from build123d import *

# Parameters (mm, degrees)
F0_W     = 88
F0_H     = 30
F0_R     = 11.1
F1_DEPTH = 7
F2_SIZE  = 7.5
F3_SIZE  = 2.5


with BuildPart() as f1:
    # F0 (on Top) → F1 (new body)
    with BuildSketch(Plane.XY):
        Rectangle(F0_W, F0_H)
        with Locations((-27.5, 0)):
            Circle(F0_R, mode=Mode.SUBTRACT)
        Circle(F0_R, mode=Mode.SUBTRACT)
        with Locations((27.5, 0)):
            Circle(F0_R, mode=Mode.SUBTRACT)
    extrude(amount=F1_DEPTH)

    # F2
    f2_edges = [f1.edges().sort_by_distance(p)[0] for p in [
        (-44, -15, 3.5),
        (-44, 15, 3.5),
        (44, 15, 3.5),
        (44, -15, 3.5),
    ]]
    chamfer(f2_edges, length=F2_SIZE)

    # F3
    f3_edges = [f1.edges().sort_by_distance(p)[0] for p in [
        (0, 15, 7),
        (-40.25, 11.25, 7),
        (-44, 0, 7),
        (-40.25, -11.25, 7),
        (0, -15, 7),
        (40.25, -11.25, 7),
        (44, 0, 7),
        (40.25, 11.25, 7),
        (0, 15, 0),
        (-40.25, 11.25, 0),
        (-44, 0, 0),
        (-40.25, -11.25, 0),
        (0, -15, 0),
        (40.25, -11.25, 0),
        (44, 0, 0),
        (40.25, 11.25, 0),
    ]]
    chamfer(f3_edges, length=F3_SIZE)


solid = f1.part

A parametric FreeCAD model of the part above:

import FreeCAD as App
import Part
import Sketcher


def edges_at(feature, points):
    """Names of the edges that pass closest to the given points."""
    edges = feature.Shape.Edges
    near = lambda p: min(range(len(edges)), key=lambda i: edges[i].distToShape(Part.Vertex(*p))[0])
    return sorted({f"Edge{near(p) + 1}" for p in points})

doc = App.newDocument("Part")
body = doc.addObject("PartDesign::Body", "Body")

# Sketch on XY plane
sketch1 = body.newObject("Sketcher::SketchObject", "Sketch")
sketch1.AttachmentSupport = (doc.getObject("XY_Plane"), [""])
sketch1.MapMode = "FlatFace"
sketch1.addGeometry(Part.LineSegment(App.Vector(-44, 15, 0), App.Vector(-44, -15, 0)), False)
sketch1.addGeometry(Part.LineSegment(App.Vector(-44, -15, 0), App.Vector(44, -15, 0)), False)
sketch1.addGeometry(Part.LineSegment(App.Vector(44, -15, 0), App.Vector(44, 15, 0)), False)
sketch1.addGeometry(Part.LineSegment(App.Vector(44, 15, 0), App.Vector(-44, 15, 0)), False)
sketch1.addGeometry(Part.Circle(App.Vector(-28, 0, 0), App.Vector(0, 0, 1), 11), False)
sketch1.addGeometry(Part.Circle(App.Vector(0, 0, 0), App.Vector(0, 0, 1), 11), False)
sketch1.addGeometry(Part.Circle(App.Vector(28, 0, 0), App.Vector(0, 0, 1), 11), False)
sketch1.addConstraint(Sketcher.Constraint("Coincident", 0, 2, 1, 1))
sketch1.addConstraint(Sketcher.Constraint("Coincident", 1, 2, 2, 1))
sketch1.addConstraint(Sketcher.Constraint("Coincident", 2, 2, 3, 1))
sketch1.addConstraint(Sketcher.Constraint("Coincident", 3, 2, 0, 1))
sketch1.addConstraint(Sketcher.Constraint("Vertical", 0))
sketch1.addConstraint(Sketcher.Constraint("Horizontal", 1))
sketch1.addConstraint(Sketcher.Constraint("Vertical", 2))
sketch1.addConstraint(Sketcher.Constraint("Horizontal", 3))
sketch1.addConstraint(Sketcher.Constraint("Coincident", 5, 3, -1, 1))
sketch1.addConstraint(Sketcher.Constraint("Equal", 4, 5))
sketch1.addConstraint(Sketcher.Constraint("Equal", 5, 6))
sketch1.addConstraint(Sketcher.Constraint("Symmetric", 4, 3, 6, 3, -1, 1))
sketch1.addConstraint(Sketcher.Constraint("Symmetric", 0, 2, 2, 2, -1, 1))
sketch1.addConstraint(Sketcher.Constraint("PointOnObject", 4, 3, -1))
sketch1.addConstraint(Sketcher.Constraint("Diameter", 4, 22.2))
sketch1.addConstraint(Sketcher.Constraint("DistanceX", 1, 1, 1, 2, 88.0))
sketch1.addConstraint(Sketcher.Constraint("DistanceY", 0, 2, 0, 1, 30.0))
sketch1.addConstraint(Sketcher.Constraint("DistanceX", 4, 3, 6, 3, 55.0))
pad1 = body.newObject("PartDesign::Pad", "Pad")
pad1.Profile = sketch1
pad1.Length = 7
doc.recompute()

chamfer = body.newObject("PartDesign::Chamfer", "Chamfer")
chamfer.Base = (pad1, edges_at(pad1, [
    (-44, -15, 3.5),
    (-44, 15, 3.5),
    (44, 15, 3.5),
    (44, -15, 3.5),
]))
chamfer.Size = 7.5
doc.recompute()

chamfer2 = body.newObject("PartDesign::Chamfer", "Chamfer001")
chamfer2.Base = (chamfer, edges_at(chamfer, [
    (0, 15, 7),
    (-40.25, 11.25, 7),
    (-44, 0, 7),
    (-40.25, -11.25, 7),
    (0, -15, 7),
    (40.25, -11.25, 7),
    (44, 0, 7),
    (40.25, 11.25, 7),
    (0, 15, 0),
    (-40.25, 11.25, 0),
    (-44, 0, 0),
    (-40.25, -11.25, 0),
    (0, -15, 0),
    (40.25, -11.25, 0),
    (44, 0, 0),
    (40.25, 11.25, 0),
]))
chamfer2.Size = 2.5

doc.recompute()
